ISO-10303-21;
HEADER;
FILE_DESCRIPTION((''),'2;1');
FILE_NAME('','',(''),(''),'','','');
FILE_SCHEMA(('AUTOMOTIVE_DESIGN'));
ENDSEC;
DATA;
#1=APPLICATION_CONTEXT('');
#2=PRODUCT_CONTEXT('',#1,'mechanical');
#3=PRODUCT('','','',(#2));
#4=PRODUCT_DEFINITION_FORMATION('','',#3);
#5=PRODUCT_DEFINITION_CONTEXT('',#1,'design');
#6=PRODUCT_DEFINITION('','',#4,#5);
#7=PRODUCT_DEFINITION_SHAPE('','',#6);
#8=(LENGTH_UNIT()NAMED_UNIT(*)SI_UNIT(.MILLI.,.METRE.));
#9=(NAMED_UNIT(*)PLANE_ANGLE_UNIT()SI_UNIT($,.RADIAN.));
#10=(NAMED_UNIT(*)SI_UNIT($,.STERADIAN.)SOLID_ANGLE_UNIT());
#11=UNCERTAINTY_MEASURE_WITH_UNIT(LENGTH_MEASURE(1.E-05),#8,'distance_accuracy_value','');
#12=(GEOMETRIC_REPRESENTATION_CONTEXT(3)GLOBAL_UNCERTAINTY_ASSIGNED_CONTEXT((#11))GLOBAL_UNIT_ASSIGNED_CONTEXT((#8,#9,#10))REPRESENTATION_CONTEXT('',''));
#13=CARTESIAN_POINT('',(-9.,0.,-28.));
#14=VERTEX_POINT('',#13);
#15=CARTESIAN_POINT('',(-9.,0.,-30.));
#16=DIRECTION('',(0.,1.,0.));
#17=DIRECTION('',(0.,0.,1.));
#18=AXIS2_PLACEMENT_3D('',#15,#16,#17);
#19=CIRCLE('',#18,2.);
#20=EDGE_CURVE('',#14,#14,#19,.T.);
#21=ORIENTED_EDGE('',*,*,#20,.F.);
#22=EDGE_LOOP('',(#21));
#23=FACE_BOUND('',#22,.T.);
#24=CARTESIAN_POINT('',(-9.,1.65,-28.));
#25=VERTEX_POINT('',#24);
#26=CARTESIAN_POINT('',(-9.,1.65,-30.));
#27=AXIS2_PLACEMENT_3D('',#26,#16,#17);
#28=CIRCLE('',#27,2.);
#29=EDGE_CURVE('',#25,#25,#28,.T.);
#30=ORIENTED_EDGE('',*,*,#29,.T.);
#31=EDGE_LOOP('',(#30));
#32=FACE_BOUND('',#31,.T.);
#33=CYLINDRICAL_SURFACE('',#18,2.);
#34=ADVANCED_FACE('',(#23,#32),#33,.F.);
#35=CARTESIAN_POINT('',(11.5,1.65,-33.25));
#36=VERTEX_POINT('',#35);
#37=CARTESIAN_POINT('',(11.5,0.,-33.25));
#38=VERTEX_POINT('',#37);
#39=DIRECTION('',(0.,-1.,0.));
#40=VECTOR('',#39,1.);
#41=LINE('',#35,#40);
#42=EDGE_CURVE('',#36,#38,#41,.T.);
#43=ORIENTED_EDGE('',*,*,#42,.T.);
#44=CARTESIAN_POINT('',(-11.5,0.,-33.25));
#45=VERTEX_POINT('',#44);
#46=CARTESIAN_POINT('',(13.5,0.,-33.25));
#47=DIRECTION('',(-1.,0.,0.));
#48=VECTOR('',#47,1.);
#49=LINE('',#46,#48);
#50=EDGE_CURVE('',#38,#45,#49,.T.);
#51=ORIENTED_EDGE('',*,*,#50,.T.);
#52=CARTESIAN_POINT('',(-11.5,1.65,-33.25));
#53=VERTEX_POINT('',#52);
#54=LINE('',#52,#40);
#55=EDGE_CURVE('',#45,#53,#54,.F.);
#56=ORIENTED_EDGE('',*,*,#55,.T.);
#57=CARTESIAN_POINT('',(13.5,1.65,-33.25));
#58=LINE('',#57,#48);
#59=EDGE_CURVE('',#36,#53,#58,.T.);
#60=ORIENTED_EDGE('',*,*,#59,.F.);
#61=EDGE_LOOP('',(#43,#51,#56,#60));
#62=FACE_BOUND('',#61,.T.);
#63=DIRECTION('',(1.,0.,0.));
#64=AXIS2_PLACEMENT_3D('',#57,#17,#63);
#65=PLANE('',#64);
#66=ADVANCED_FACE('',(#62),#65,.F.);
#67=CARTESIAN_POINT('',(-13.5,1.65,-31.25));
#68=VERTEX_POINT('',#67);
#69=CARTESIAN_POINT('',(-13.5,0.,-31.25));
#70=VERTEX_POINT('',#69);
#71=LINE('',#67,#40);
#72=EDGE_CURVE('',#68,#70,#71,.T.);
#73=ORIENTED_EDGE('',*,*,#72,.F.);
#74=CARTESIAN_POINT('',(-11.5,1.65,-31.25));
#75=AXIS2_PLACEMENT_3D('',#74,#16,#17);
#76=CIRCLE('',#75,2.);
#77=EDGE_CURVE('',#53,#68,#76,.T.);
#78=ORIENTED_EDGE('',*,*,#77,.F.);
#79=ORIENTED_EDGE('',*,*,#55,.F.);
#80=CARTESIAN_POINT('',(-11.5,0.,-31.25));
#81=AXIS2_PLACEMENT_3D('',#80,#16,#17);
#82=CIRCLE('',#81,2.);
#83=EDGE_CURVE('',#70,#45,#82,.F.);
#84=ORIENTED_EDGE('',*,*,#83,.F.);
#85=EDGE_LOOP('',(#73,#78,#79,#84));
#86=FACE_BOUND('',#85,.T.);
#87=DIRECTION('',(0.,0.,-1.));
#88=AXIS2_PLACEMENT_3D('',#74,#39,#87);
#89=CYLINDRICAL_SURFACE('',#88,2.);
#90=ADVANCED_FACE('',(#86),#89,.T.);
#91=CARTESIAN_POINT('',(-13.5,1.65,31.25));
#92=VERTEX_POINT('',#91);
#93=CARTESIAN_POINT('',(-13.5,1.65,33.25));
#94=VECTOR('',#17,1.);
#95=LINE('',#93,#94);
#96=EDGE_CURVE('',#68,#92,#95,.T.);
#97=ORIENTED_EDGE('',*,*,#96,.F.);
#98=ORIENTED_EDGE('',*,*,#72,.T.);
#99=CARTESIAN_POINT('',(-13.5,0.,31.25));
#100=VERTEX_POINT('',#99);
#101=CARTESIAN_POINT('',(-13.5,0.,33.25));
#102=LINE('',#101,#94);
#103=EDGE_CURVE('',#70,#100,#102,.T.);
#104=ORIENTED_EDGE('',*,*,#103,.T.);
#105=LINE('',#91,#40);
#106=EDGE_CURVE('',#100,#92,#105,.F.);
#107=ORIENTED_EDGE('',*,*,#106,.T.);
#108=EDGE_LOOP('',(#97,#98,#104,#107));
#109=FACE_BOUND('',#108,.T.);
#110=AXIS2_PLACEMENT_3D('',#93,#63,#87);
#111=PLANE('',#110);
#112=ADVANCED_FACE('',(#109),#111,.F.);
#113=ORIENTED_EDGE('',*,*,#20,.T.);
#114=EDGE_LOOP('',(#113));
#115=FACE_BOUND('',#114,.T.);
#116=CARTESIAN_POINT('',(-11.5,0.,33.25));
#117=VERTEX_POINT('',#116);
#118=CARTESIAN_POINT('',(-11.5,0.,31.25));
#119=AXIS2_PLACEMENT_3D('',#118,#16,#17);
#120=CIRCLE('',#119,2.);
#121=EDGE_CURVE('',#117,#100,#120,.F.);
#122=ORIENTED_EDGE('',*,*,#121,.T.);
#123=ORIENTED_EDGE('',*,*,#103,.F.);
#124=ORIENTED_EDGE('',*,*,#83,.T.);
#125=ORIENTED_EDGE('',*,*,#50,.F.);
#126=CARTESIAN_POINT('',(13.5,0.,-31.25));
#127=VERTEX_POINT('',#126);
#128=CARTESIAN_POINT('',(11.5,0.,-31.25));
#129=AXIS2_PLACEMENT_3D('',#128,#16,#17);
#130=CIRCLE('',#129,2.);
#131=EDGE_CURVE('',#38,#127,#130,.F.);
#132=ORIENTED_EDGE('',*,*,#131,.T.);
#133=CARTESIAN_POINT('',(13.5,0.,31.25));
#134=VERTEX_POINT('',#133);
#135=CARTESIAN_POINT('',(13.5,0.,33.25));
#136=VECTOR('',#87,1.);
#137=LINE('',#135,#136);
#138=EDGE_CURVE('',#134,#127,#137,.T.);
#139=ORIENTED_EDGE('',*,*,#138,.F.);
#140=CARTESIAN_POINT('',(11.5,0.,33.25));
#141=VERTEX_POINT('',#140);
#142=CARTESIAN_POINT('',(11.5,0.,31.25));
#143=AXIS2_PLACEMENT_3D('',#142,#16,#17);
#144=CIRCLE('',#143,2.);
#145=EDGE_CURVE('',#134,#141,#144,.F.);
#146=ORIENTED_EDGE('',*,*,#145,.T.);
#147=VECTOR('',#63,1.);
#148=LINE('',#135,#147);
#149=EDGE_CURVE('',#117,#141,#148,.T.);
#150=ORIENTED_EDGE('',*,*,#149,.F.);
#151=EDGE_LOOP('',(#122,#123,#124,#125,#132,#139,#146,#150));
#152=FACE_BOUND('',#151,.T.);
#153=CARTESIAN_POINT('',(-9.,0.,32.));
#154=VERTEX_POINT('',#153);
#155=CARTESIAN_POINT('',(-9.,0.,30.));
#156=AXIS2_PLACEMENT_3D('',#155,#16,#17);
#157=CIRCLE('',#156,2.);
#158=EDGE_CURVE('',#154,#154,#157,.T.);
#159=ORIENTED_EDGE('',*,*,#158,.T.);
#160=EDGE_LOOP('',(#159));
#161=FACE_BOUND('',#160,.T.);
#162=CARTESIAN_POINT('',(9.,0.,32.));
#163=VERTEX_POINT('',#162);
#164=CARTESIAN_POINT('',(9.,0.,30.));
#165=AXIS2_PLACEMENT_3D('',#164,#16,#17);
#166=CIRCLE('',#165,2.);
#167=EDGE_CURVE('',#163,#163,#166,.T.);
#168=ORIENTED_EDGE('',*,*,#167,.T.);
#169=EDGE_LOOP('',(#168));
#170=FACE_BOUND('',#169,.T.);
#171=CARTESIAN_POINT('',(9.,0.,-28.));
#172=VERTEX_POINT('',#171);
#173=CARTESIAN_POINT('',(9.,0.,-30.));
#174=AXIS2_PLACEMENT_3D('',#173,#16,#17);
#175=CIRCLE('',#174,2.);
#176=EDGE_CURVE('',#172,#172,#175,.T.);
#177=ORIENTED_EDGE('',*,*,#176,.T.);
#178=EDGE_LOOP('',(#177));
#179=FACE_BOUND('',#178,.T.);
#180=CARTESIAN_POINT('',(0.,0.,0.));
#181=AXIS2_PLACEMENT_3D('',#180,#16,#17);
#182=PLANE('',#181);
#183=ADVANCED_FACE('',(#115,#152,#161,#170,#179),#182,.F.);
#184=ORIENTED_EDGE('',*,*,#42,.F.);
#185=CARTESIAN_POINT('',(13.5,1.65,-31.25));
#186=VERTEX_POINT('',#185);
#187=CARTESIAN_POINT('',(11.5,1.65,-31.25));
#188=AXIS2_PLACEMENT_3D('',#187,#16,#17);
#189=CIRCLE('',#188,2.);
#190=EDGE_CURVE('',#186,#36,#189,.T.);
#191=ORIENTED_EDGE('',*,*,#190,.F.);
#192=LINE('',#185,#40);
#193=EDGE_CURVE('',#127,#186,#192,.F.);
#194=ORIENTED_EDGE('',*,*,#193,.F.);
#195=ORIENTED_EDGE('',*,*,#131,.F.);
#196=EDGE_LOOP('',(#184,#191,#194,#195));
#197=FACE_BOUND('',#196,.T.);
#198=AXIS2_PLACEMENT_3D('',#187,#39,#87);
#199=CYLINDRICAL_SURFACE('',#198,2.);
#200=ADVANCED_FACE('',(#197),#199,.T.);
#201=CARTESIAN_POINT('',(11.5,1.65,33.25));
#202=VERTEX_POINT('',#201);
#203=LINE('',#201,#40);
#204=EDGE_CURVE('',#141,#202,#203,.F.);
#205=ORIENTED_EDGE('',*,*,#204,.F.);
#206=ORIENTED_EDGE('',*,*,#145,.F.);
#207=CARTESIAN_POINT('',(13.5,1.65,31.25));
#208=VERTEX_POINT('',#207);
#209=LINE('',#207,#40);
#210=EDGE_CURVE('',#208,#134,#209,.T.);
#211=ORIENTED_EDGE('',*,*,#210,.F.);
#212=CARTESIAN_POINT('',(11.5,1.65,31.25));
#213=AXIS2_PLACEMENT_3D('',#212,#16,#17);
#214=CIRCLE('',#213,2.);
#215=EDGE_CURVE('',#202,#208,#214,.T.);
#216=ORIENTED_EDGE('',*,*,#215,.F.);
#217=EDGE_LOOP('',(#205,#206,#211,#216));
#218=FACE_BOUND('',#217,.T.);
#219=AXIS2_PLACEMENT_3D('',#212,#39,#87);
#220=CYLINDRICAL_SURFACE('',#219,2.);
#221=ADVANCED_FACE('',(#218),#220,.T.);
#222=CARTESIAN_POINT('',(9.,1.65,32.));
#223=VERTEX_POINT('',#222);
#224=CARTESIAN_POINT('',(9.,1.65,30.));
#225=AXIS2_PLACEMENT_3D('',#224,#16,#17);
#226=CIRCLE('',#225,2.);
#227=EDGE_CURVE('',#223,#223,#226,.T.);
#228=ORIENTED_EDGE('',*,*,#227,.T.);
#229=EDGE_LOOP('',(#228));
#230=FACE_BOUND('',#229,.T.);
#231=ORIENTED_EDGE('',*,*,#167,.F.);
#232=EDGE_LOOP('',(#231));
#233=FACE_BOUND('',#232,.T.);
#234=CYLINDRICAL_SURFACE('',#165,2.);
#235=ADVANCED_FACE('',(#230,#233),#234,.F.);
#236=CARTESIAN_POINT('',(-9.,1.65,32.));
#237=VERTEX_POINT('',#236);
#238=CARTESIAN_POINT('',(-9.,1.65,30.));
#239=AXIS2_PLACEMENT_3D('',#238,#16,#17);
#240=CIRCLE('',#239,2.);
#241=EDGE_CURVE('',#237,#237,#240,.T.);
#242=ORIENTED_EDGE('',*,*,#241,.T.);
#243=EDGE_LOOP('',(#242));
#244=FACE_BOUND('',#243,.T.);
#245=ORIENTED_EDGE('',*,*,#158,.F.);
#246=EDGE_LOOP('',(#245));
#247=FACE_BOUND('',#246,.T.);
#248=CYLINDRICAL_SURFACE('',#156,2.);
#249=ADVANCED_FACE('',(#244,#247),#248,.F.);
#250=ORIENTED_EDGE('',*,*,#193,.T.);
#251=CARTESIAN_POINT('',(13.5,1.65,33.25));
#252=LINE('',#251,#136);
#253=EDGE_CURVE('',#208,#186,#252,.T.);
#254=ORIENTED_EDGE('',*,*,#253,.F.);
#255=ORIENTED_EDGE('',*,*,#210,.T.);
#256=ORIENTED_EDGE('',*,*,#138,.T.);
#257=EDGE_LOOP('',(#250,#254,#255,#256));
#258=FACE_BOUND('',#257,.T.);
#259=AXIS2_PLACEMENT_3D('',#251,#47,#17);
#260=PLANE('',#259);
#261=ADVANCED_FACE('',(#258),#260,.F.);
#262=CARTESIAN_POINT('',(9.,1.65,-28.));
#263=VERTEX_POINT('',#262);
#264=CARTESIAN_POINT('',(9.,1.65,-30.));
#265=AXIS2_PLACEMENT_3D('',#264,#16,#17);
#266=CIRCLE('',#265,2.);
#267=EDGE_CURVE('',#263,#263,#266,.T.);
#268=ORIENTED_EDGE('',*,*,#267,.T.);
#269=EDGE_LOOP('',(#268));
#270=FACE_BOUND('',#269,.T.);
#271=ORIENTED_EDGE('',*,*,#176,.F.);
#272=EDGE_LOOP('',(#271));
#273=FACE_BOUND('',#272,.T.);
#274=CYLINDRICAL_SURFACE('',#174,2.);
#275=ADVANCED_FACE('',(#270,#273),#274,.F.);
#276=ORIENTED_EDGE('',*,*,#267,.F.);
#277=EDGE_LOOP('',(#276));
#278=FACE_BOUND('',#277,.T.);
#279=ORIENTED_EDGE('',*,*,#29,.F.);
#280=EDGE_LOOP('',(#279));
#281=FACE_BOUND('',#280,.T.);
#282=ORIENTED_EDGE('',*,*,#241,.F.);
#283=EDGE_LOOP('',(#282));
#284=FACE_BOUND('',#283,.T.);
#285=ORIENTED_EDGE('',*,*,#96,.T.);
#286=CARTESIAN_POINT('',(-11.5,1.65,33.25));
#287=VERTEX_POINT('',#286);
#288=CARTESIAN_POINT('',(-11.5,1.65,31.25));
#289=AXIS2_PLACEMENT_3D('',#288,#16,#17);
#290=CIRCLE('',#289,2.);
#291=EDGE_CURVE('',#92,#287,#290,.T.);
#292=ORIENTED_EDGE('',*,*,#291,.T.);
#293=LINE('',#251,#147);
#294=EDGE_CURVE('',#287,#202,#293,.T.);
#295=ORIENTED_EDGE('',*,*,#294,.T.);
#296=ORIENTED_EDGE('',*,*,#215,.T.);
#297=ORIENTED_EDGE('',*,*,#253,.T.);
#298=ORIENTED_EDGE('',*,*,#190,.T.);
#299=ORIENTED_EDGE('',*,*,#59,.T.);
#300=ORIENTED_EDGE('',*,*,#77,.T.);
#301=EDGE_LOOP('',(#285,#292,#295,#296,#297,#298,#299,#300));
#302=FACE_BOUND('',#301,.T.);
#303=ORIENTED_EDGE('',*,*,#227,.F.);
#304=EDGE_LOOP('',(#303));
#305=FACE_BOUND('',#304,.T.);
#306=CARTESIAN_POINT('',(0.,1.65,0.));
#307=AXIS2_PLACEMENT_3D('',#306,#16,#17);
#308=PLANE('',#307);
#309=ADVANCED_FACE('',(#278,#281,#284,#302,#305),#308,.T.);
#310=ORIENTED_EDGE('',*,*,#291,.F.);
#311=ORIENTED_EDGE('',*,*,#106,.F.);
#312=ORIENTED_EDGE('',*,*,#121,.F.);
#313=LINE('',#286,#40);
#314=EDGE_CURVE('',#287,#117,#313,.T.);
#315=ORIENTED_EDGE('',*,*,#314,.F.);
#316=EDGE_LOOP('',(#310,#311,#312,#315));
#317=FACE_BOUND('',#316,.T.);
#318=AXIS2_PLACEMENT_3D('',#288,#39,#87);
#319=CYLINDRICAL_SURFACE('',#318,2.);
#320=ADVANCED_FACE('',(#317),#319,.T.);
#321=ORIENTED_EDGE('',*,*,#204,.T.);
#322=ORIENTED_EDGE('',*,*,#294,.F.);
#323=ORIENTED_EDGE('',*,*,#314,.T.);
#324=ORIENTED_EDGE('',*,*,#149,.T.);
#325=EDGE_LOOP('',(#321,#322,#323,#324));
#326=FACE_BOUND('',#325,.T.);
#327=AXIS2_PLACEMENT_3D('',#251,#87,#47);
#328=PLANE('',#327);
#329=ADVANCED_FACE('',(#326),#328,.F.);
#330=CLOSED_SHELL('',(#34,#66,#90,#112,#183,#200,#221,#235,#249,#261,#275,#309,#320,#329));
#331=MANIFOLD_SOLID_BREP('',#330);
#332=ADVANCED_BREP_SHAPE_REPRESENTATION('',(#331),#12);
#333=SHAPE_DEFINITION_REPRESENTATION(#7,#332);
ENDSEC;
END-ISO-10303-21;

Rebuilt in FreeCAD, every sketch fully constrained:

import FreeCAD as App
import Part
import Sketcher
from FreeCAD import Vector
Q = App.Units.Quantity


def edges_at(feature, points):
    """Names of the edges that pass closest to the given points."""
    edges = feature.Shape.Edges
    near = lambda p: min(range(len(edges)), key=lambda i: edges[i].distToShape(Part.Vertex(*p))[0])
    return sorted({f"Edge{near(p) + 1}" for p in points})

doc = App.newDocument("Part")
params = doc.addObject("Spreadsheet::Sheet", "Params")
for row, (alias, value) in enumerate([
    ("sketch1_width", "27 mm"),
    ("sketch1_height", "66.5 mm"),
    ("pad1_length", "1.65 mm"),
    ("fillet_radius", "2 mm"),
    ("sketch2_diameter", "4 mm"),
], start=1):
    params.set(f"A{row}", alias)
    params.set(f"B{row}", "=" + value)
    params.setAlias(f"B{row}", alias)

body = doc.addObject("PartDesign::Body", "Body")

# Sketch on XZ plane
sketch1 = doc.addObject("Sketcher::SketchObject", "Sketch")
body.addObject(sketch1)
sketch1.AttachmentSupport = (doc.XZ_Plane, [""])
sketch1.MapMode = "FlatFace"
sketch1.addGeometry([
    Part.LineSegment(Vector(-14, -33, 0), Vector(-14, 33, 0)),
    Part.LineSegment(Vector(-14, 33, 0), Vector(14, 33, 0)),
    Part.LineSegment(Vector(14, 33, 0), Vector(14, -33, 0)),
    Part.LineSegment(Vector(14, -33, 0), Vector(-14, -33, 0)),
], False)
sketch1.addConstraint([
    Sketcher.Constraint("Coincident", 0, 2, 1, 1),
    Sketcher.Constraint("Coincident", 1, 2, 2, 1),
    Sketcher.Constraint("Coincident", 2, 2, 3, 1),
    Sketcher.Constraint("Coincident", 3, 2, 0, 1),
    Sketcher.Constraint("Vertical", 0),
    Sketcher.Constraint("Horizontal", 1),
    Sketcher.Constraint("Vertical", 2),
    Sketcher.Constraint("Horizontal", 3),
    Sketcher.Constraint("Symmetric", 0, 2, 2, 2, -1, 1),
    Sketcher.Constraint("DistanceX", 1, 1, 1, 2, Q("27 mm")),
    Sketcher.Constraint("DistanceY", 0, 1, 0, 2, Q("66.5 mm")),
])
sketch1.setExpression("Constraints[9]", "Params.sketch1_width")
sketch1.setExpression("Constraints[10]", "Params.sketch1_height")
pad1 = doc.addObject("PartDesign::Pad", "Pad")
body.addObject(pad1)
pad1.Profile = sketch1
pad1.setExpression("Length", "Params.pad1_length")
pad1.Reversed = True
doc.recompute()

fillet = doc.addObject("PartDesign::Fillet", "Fillet")
body.addObject(fillet)
fillet.Base = (pad1, edges_at(pad1, [
    (-13.5, 0.825, -33.25),
    (13.5, 0.825, -33.25),
    (13.5, 0.825, 33.25),
    (-13.5, 0.825, 33.25),
]))
fillet.setExpression("Radius", "Params.fillet_radius")

# Sketch on XZ plane
sketch2 = doc.addObject("Sketcher::SketchObject", "Sketch001")
body.addObject(sketch2)
sketch2.AttachmentSupport = (doc.XZ_Plane, [""])
sketch2.MapMode = "FlatFace"
sketch2.AttachmentOffset = App.Placement(Vector(0, 0, -1.65), App.Rotation())
sketch2.addGeometry([
    Part.Circle(Vector(-9, -30, 0), Vector(0, 0, 1), 2),
    Part.Circle(Vector(9, -30, 0), Vector(0, 0, 1), 2),
    Part.Circle(Vector(9, 30, 0), Vector(0, 0, 1), 2),
    Part.Circle(Vector(-9, 30, 0), Vector(0, 0, 1), 2),
], False)
sketch2.addConstraint([
    Sketcher.Constraint("Equal", 0, 1),
    Sketcher.Constraint("Equal", 1, 2),
    Sketcher.Constraint("Equal", 2, 3),
    Sketcher.Constraint("Symmetric", 0, 3, 2, 3, -1, 1),
    Sketcher.Constraint("Symmetric", 1, 3, 3, 3, -1, 1),
    Sketcher.Constraint("Symmetric", 0, 3, 1, 3, -2),
    Sketcher.Constraint("Diameter", 0, Q("4 mm")),
    Sketcher.Constraint("DistanceX", 0, 3, -1, 1, Q("9 mm")),
    Sketcher.Constraint("DistanceY", 0, 3, -1, 1, Q("30 mm")),
])
sketch2.setExpression("Constraints[6]", "Params.sketch2_diameter")
pocket1 = doc.addObject("PartDesign::Pocket", "Pocket")
body.addObject(pocket1)
pocket1.Profile = sketch2
pocket1.Type = "ThroughAll"
pocket1.Reversed = True

doc.recompute()
